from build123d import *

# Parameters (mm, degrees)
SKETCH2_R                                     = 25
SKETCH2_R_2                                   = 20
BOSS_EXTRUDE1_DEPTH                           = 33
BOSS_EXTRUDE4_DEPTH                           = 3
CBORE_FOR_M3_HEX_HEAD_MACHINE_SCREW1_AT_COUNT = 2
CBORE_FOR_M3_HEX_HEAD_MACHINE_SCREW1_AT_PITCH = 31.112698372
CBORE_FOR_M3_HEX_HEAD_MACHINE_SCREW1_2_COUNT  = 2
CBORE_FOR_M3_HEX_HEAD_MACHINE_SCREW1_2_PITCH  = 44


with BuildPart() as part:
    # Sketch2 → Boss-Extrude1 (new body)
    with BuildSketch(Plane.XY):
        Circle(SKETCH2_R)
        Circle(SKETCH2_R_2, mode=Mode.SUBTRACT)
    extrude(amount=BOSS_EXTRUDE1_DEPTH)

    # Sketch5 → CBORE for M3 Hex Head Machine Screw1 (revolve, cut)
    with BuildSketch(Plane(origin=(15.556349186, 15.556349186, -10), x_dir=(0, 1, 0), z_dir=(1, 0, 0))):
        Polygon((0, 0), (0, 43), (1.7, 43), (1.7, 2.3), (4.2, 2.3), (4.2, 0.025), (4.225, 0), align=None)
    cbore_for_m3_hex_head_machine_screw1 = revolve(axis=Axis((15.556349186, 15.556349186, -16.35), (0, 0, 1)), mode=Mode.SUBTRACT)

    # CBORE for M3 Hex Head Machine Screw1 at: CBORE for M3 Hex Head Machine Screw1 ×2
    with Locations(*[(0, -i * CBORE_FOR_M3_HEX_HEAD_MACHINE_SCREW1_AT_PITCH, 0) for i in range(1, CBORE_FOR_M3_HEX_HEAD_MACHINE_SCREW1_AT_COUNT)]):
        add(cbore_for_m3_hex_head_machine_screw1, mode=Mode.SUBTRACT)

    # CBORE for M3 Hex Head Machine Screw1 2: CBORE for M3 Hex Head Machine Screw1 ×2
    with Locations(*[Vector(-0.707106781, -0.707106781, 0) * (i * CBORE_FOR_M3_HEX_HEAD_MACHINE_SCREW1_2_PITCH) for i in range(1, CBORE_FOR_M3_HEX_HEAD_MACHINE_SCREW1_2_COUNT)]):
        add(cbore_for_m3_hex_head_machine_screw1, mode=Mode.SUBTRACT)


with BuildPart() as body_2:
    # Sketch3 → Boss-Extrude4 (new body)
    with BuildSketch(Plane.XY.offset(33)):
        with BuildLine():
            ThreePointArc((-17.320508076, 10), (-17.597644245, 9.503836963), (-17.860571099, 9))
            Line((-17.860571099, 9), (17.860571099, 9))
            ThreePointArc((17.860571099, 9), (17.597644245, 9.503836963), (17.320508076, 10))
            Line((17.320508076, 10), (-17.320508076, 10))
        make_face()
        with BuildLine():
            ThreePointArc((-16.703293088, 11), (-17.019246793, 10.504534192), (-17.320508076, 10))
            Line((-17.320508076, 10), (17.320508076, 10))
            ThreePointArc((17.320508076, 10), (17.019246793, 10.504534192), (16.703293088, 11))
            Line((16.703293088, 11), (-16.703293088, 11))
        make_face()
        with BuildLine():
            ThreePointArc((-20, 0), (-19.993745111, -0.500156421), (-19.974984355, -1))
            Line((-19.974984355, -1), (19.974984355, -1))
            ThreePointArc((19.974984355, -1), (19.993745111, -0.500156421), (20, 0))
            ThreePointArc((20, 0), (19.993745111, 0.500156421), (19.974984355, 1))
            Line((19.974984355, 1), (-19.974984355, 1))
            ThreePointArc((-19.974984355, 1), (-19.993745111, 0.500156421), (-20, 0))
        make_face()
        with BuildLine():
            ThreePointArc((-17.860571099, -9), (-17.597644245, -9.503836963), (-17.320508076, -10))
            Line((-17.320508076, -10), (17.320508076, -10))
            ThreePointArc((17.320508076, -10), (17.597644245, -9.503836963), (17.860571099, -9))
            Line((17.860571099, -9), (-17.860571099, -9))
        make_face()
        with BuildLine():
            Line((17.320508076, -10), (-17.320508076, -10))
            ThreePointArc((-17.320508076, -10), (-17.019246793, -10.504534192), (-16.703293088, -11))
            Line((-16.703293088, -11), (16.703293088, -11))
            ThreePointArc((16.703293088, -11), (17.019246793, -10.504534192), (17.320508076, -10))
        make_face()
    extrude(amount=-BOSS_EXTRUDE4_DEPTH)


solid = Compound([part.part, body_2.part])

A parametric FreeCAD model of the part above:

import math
import FreeCAD as App
import Part
import Sketcher

V = App.Vector
Q = App.Units.Quantity


def add_polygon(sketch, points):
    """Adds a closed chain of lines whose ends are joined by coincident constraints."""
    first, n = sketch.GeometryCount, len(points)
    for a, b in zip(points, points[1:] + points[:1]):
        sketch.addGeometry(Part.LineSegment(App.Vector(*a, 0), App.Vector(*b, 0)), False)
    for i in range(n):
        sketch.addConstraint(Sketcher.Constraint("Coincident", first + i, 2, first + (i + 1) % n, 1))

doc = App.newDocument("Part")
body = doc.addObject("PartDesign::Body", "Body")

sketch1 = body.newObject("Sketcher::SketchObject", "Sketch")
sketch1.AttachmentSupport = (doc.getObject("XY_Plane"), [""])
sketch1.MapMode = "FlatFace"
sketch1.addGeometry([
    Part.Circle(V(0, 0, 0), V(0, 0, 1), 25),
    Part.Circle(V(0, 0, 0), V(0, 0, 1), 20),
], False)
sketch1.addConstraint([
    Sketcher.Constraint("Coincident", 0, 3, -1, 1),
    Sketcher.Constraint("Coincident", 1, 3, -1, 1),
    Sketcher.Constraint("Diameter", 0, Q("50 mm")),
    Sketcher.Constraint("Diameter", 1, Q("40 mm")),
])
pad1 = body.newObject("PartDesign::Pad", "Pad")
pad1.Profile = sketch1
pad1.Length = 33

sketch2 = body.newObject("Sketcher::SketchObject", "Sketch001")
sketch2.AttachmentSupport = (doc.getObject("YZ_Plane"), [""])
sketch2.MapMode = "FlatFace"
sketch2.AttachmentOffset = App.Placement(V(0, 0, 15.556349), App.Rotation())
add_polygon(sketch2, [(15.556, 33), (15.556, -10), (19.781, -10), (19.756, -9.975), (19.756, -7.7), (17.256, -7.7), (17.256, 33)])
sketch2.addGeometry(Part.LineSegment(V(15.556, -10, 0), V(15.556, 33, 0)), True)
sketch2.addConstraint([
    Sketcher.Constraint("Vertical", 0),
    Sketcher.Constraint("Horizontal", 1),
    Sketcher.Constraint("Vertical", 3),
    Sketcher.Constraint("Horizontal", 4),
    Sketcher.Constraint("Vertical", 5),
    Sketcher.Constraint("Horizontal", 6),
    Sketcher.Constraint("Vertical", 7),
    Sketcher.Constraint("Coincident", 7, 1, 0, 2),
    Sketcher.Constraint("Horizontal", 5, 2, 7, 2),
    Sketcher.Constraint("DistanceY", 0, 2, 0, 1, Q("43 mm")),
    Sketcher.Constraint("Angle", 2, Q("135 deg")),
    Sketcher.Constraint("DistanceX", 4, 2, 4, 1, Q("2.5 mm")),
    Sketcher.Constraint("DistanceX", 6, 2, 6, 1, Q("1.7 mm")),
    Sketcher.Constraint("DistanceY", 5, 1, 5, 2, Q("40.7 mm")),
    Sketcher.Constraint("DistanceY", 0, 2, -1, 1, Q("10 mm")),
    Sketcher.Constraint("DistanceX", 1, 1, 1, 2, Q("4.225 mm")),
    Sketcher.Constraint("DistanceX", -1, 1, 0, 2, Q("15.556349 mm")),
])
groove = body.newObject("PartDesign::Groove", "Groove")
groove.Profile = sketch2
groove.ReferenceAxis = (sketch2, ["Axis0"])
groove.Angle = 360
doc.recompute()

linearpattern = body.newObject("PartDesign::LinearPattern", "LinearPattern")
linearpattern.Originals = [groove]
linearpattern.Direction = (doc.getObject("Y_Axis"), [""])
linearpattern.Mode = "offset"
linearpattern.Offset = 31.112698
linearpattern.Occurrences = 2
linearpattern.Reversed = True
body.Tip = linearpattern
doc.recompute()

datumline = body.newObject("PartDesign::Line", "DatumLine")
datumline.Placement = App.Placement(V(0, 0, 0), App.Rotation(V(0, 0, 1), V(-0.707106781, -0.707106781, 0)))
linearpattern2 = body.newObject("PartDesign::LinearPattern", "LinearPattern001")
linearpattern2.Originals = [groove]
linearpattern2.Direction = (datumline, [""])
linearpattern2.Mode = "offset"
linearpattern2.Offset = 44
linearpattern2.Occurrences = 2
body.Tip = linearpattern2
body2 = doc.addObject("PartDesign::Body", "Body001")
body2.AllowCompound = True

sketch3 = body2.newObject("Sketcher::SketchObject", "Sketch002")
sketch3.AttachmentSupport = (doc.getObject("XY_Plane001"), [""])
sketch3.MapMode = "FlatFace"
sketch3.AttachmentOffset = App.Placement(V(0, 0, 33), App.Rotation())
sketch3.addGeometry([
    Part.ArcOfCircle(Part.Circle(V(0, 0, 0), V(0, 0, 1), 20), math.radians(150), math.radians(153.26)),
    Part.LineSegment(V(-17.9, 9, 0), V(17.9, 9, 0)),
    Part.ArcOfCircle(Part.Circle(V(0, 0, 0), V(0, 0, 1), 20), math.radians(26.74), math.radians(30)),
    Part.ArcOfCircle(Part.Circle(V(0, 0, 0), V(0, 0, 1), 20), math.radians(30), math.radians(33.37)),
    Part.LineSegment(V(16.7, 11, 0), V(-16.7, 11, 0)),
    Part.ArcOfCircle(Part.Circle(V(0, 0, 0), V(0, 0, 1), 20), math.radians(146.63), math.radians(150)),
    Part.ArcOfCircle(Part.Circle(V(0, 0, 0), V(0, 0, 1), 20), math.radians(180), math.radians(182.87)),
    Part.LineSegment(V(-20, -1, 0), V(20, -1, 0)),
    Part.ArcOfCircle(Part.Circle(V(0, 0, 0), V(0, 0, 1), 20), math.radians(-2.87), math.radians(0)),
    Part.ArcOfCircle(Part.Circle(V(0, 0, 0), V(0, 0, 1), 20), math.radians(0), math.radians(2.87)),
    Part.LineSegment(V(20, 1, 0), V(-20, 1, 0)),
    Part.ArcOfCircle(Part.Circle(V(0, 0, 0), V(0, 0, 1), 20), math.radians(177.13), math.radians(180)),
    Part.ArcOfCircle(Part.Circle(V(0, 0, 0), V(0, 0, 1), 20), math.radians(-153.26), math.radians(-150)),
    Part.ArcOfCircle(Part.Circle(V(0, 0, 0), V(0, 0, 1), 20), math.radians(-150), math.radians(-146.63)),
    Part.LineSegment(V(-16.7, -11, 0), V(16.7, -11, 0)),
    Part.ArcOfCircle(Part.Circle(V(0, 0, 0), V(0, 0, 1), 20), math.radians(-33.37), math.radians(-30)),
    Part.ArcOfCircle(Part.Circle(V(0, 0, 0), V(0, 0, 1), 20), math.radians(-30), math.radians(-26.74)),
    Part.LineSegment(V(17.9, -9, 0), V(-17.9, -9, 0)),
], False)
sketch3.addConstraint([
    Sketcher.Constraint("Coincident", 0, 2, 1, 1),
    Sketcher.Constraint("Coincident", 1, 2, 2, 1),
    Sketcher.Constraint("Tangent", 2, 2, 3, 1),
    Sketcher.Constraint("Coincident", 3, 2, 4, 1),
    Sketcher.Constraint("Coincident", 4, 2, 5, 1),
    Sketcher.Constraint("Tangent", 5, 2, 0, 1),
    Sketcher.Constraint("Coincident", 6, 2, 7, 1),
    Sketcher.Constraint("Coincident", 7, 2, 8, 1),
    Sketcher.Constraint("Tangent", 8, 2, 9, 1),
    Sketcher.Constraint("Coincident", 9, 2, 10, 1),
    Sketcher.Constraint("Coincident", 10, 2, 11, 1),
    Sketcher.Constraint("Tangent", 11, 2, 6, 1),
    Sketcher.Constraint("Tangent", 12, 2, 13, 1),
    Sketcher.Constraint("Coincident", 13, 2, 14, 1),
    Sketcher.Constraint("Coincident", 14, 2, 15, 1),
    Sketcher.Constraint("Tangent", 15, 2, 16, 1),
    Sketcher.Constraint("Coincident", 16, 2, 17, 1),
    Sketcher.Constraint("Coincident", 17, 2, 12, 1),
    Sketcher.Constraint("Horizontal", 1),
    Sketcher.Constraint("Horizontal", 4),
    Sketcher.Constraint("Horizontal", 7),
    Sketcher.Constraint("Horizontal", 10),
    Sketcher.Constraint("Horizontal", 14),
    Sketcher.Constraint("Horizontal", 17),
    Sketcher.Constraint("Coincident", 0, 3, -1, 1),
    Sketcher.Constraint("Coincident", 2, 3, -1, 1),
    Sketcher.Constraint("Coincident", 6, 3, -1, 1),
    Sketcher.Constraint("Coincident", 8, 3, -1, 1),
    Sketcher.Constraint("Coincident", 12, 3, -1, 1),
    Sketcher.Constraint("Coincident", 15, 3, -1, 1),
    Sketcher.Constraint("Equal", 0, 2),
    Sketcher.Constraint("Equal", 2, 3),
    Sketcher.Constraint("Equal", 3, 5),
    Sketcher.Constraint("Equal", 5, 6),
    Sketcher.Constraint("Equal", 6, 8),
    Sketcher.Constraint("Equal", 8, 9),
    Sketcher.Constraint("Equal", 9, 11),
    Sketcher.Constraint("Equal", 11, 12),
    Sketcher.Constraint("Equal", 12, 13),
    Sketcher.Constraint("Equal", 13, 15),
    Sketcher.Constraint("Equal", 15, 16),
    Sketcher.Constraint("PointOnObject", 8, 2, -1),
    Sketcher.Constraint("PointOnObject", 11, 2, -1),
    Sketcher.Constraint("Horizontal", 2, 2, 5, 2),
    Sketcher.Constraint("Horizontal", 12, 2, 15, 2),
    Sketcher.Constraint("Vertical", 7, 2, 9, 2),
    Sketcher.Constraint("Vertical", 5, 2, 12, 2),
    Sketcher.Constraint("Vertical", 4, 2, 13, 2),
    Sketcher.Constraint("Vertical", 1, 2, 16, 2),
    Sketcher.Constraint("Radius", 0, Q("20 mm")),
    Sketcher.Constraint("DistanceY", -1, 1, 0, 2, Q("9 mm")),
    Sketcher.Constraint("DistanceY", -1, 1, 2, 2, Q("10 mm")),
    Sketcher.Constraint("DistanceY", -1, 1, 3, 2, Q("11 mm")),
    Sketcher.Constraint("DistanceY", 6, 2, -1, 1, Q("1 mm")),
])
pad2 = body2.newObject("PartDesign::Pad", "Pad001")
pad2.Profile = sketch3
pad2.Length = 3
pad2.Reversed = True

doc.recompute()
